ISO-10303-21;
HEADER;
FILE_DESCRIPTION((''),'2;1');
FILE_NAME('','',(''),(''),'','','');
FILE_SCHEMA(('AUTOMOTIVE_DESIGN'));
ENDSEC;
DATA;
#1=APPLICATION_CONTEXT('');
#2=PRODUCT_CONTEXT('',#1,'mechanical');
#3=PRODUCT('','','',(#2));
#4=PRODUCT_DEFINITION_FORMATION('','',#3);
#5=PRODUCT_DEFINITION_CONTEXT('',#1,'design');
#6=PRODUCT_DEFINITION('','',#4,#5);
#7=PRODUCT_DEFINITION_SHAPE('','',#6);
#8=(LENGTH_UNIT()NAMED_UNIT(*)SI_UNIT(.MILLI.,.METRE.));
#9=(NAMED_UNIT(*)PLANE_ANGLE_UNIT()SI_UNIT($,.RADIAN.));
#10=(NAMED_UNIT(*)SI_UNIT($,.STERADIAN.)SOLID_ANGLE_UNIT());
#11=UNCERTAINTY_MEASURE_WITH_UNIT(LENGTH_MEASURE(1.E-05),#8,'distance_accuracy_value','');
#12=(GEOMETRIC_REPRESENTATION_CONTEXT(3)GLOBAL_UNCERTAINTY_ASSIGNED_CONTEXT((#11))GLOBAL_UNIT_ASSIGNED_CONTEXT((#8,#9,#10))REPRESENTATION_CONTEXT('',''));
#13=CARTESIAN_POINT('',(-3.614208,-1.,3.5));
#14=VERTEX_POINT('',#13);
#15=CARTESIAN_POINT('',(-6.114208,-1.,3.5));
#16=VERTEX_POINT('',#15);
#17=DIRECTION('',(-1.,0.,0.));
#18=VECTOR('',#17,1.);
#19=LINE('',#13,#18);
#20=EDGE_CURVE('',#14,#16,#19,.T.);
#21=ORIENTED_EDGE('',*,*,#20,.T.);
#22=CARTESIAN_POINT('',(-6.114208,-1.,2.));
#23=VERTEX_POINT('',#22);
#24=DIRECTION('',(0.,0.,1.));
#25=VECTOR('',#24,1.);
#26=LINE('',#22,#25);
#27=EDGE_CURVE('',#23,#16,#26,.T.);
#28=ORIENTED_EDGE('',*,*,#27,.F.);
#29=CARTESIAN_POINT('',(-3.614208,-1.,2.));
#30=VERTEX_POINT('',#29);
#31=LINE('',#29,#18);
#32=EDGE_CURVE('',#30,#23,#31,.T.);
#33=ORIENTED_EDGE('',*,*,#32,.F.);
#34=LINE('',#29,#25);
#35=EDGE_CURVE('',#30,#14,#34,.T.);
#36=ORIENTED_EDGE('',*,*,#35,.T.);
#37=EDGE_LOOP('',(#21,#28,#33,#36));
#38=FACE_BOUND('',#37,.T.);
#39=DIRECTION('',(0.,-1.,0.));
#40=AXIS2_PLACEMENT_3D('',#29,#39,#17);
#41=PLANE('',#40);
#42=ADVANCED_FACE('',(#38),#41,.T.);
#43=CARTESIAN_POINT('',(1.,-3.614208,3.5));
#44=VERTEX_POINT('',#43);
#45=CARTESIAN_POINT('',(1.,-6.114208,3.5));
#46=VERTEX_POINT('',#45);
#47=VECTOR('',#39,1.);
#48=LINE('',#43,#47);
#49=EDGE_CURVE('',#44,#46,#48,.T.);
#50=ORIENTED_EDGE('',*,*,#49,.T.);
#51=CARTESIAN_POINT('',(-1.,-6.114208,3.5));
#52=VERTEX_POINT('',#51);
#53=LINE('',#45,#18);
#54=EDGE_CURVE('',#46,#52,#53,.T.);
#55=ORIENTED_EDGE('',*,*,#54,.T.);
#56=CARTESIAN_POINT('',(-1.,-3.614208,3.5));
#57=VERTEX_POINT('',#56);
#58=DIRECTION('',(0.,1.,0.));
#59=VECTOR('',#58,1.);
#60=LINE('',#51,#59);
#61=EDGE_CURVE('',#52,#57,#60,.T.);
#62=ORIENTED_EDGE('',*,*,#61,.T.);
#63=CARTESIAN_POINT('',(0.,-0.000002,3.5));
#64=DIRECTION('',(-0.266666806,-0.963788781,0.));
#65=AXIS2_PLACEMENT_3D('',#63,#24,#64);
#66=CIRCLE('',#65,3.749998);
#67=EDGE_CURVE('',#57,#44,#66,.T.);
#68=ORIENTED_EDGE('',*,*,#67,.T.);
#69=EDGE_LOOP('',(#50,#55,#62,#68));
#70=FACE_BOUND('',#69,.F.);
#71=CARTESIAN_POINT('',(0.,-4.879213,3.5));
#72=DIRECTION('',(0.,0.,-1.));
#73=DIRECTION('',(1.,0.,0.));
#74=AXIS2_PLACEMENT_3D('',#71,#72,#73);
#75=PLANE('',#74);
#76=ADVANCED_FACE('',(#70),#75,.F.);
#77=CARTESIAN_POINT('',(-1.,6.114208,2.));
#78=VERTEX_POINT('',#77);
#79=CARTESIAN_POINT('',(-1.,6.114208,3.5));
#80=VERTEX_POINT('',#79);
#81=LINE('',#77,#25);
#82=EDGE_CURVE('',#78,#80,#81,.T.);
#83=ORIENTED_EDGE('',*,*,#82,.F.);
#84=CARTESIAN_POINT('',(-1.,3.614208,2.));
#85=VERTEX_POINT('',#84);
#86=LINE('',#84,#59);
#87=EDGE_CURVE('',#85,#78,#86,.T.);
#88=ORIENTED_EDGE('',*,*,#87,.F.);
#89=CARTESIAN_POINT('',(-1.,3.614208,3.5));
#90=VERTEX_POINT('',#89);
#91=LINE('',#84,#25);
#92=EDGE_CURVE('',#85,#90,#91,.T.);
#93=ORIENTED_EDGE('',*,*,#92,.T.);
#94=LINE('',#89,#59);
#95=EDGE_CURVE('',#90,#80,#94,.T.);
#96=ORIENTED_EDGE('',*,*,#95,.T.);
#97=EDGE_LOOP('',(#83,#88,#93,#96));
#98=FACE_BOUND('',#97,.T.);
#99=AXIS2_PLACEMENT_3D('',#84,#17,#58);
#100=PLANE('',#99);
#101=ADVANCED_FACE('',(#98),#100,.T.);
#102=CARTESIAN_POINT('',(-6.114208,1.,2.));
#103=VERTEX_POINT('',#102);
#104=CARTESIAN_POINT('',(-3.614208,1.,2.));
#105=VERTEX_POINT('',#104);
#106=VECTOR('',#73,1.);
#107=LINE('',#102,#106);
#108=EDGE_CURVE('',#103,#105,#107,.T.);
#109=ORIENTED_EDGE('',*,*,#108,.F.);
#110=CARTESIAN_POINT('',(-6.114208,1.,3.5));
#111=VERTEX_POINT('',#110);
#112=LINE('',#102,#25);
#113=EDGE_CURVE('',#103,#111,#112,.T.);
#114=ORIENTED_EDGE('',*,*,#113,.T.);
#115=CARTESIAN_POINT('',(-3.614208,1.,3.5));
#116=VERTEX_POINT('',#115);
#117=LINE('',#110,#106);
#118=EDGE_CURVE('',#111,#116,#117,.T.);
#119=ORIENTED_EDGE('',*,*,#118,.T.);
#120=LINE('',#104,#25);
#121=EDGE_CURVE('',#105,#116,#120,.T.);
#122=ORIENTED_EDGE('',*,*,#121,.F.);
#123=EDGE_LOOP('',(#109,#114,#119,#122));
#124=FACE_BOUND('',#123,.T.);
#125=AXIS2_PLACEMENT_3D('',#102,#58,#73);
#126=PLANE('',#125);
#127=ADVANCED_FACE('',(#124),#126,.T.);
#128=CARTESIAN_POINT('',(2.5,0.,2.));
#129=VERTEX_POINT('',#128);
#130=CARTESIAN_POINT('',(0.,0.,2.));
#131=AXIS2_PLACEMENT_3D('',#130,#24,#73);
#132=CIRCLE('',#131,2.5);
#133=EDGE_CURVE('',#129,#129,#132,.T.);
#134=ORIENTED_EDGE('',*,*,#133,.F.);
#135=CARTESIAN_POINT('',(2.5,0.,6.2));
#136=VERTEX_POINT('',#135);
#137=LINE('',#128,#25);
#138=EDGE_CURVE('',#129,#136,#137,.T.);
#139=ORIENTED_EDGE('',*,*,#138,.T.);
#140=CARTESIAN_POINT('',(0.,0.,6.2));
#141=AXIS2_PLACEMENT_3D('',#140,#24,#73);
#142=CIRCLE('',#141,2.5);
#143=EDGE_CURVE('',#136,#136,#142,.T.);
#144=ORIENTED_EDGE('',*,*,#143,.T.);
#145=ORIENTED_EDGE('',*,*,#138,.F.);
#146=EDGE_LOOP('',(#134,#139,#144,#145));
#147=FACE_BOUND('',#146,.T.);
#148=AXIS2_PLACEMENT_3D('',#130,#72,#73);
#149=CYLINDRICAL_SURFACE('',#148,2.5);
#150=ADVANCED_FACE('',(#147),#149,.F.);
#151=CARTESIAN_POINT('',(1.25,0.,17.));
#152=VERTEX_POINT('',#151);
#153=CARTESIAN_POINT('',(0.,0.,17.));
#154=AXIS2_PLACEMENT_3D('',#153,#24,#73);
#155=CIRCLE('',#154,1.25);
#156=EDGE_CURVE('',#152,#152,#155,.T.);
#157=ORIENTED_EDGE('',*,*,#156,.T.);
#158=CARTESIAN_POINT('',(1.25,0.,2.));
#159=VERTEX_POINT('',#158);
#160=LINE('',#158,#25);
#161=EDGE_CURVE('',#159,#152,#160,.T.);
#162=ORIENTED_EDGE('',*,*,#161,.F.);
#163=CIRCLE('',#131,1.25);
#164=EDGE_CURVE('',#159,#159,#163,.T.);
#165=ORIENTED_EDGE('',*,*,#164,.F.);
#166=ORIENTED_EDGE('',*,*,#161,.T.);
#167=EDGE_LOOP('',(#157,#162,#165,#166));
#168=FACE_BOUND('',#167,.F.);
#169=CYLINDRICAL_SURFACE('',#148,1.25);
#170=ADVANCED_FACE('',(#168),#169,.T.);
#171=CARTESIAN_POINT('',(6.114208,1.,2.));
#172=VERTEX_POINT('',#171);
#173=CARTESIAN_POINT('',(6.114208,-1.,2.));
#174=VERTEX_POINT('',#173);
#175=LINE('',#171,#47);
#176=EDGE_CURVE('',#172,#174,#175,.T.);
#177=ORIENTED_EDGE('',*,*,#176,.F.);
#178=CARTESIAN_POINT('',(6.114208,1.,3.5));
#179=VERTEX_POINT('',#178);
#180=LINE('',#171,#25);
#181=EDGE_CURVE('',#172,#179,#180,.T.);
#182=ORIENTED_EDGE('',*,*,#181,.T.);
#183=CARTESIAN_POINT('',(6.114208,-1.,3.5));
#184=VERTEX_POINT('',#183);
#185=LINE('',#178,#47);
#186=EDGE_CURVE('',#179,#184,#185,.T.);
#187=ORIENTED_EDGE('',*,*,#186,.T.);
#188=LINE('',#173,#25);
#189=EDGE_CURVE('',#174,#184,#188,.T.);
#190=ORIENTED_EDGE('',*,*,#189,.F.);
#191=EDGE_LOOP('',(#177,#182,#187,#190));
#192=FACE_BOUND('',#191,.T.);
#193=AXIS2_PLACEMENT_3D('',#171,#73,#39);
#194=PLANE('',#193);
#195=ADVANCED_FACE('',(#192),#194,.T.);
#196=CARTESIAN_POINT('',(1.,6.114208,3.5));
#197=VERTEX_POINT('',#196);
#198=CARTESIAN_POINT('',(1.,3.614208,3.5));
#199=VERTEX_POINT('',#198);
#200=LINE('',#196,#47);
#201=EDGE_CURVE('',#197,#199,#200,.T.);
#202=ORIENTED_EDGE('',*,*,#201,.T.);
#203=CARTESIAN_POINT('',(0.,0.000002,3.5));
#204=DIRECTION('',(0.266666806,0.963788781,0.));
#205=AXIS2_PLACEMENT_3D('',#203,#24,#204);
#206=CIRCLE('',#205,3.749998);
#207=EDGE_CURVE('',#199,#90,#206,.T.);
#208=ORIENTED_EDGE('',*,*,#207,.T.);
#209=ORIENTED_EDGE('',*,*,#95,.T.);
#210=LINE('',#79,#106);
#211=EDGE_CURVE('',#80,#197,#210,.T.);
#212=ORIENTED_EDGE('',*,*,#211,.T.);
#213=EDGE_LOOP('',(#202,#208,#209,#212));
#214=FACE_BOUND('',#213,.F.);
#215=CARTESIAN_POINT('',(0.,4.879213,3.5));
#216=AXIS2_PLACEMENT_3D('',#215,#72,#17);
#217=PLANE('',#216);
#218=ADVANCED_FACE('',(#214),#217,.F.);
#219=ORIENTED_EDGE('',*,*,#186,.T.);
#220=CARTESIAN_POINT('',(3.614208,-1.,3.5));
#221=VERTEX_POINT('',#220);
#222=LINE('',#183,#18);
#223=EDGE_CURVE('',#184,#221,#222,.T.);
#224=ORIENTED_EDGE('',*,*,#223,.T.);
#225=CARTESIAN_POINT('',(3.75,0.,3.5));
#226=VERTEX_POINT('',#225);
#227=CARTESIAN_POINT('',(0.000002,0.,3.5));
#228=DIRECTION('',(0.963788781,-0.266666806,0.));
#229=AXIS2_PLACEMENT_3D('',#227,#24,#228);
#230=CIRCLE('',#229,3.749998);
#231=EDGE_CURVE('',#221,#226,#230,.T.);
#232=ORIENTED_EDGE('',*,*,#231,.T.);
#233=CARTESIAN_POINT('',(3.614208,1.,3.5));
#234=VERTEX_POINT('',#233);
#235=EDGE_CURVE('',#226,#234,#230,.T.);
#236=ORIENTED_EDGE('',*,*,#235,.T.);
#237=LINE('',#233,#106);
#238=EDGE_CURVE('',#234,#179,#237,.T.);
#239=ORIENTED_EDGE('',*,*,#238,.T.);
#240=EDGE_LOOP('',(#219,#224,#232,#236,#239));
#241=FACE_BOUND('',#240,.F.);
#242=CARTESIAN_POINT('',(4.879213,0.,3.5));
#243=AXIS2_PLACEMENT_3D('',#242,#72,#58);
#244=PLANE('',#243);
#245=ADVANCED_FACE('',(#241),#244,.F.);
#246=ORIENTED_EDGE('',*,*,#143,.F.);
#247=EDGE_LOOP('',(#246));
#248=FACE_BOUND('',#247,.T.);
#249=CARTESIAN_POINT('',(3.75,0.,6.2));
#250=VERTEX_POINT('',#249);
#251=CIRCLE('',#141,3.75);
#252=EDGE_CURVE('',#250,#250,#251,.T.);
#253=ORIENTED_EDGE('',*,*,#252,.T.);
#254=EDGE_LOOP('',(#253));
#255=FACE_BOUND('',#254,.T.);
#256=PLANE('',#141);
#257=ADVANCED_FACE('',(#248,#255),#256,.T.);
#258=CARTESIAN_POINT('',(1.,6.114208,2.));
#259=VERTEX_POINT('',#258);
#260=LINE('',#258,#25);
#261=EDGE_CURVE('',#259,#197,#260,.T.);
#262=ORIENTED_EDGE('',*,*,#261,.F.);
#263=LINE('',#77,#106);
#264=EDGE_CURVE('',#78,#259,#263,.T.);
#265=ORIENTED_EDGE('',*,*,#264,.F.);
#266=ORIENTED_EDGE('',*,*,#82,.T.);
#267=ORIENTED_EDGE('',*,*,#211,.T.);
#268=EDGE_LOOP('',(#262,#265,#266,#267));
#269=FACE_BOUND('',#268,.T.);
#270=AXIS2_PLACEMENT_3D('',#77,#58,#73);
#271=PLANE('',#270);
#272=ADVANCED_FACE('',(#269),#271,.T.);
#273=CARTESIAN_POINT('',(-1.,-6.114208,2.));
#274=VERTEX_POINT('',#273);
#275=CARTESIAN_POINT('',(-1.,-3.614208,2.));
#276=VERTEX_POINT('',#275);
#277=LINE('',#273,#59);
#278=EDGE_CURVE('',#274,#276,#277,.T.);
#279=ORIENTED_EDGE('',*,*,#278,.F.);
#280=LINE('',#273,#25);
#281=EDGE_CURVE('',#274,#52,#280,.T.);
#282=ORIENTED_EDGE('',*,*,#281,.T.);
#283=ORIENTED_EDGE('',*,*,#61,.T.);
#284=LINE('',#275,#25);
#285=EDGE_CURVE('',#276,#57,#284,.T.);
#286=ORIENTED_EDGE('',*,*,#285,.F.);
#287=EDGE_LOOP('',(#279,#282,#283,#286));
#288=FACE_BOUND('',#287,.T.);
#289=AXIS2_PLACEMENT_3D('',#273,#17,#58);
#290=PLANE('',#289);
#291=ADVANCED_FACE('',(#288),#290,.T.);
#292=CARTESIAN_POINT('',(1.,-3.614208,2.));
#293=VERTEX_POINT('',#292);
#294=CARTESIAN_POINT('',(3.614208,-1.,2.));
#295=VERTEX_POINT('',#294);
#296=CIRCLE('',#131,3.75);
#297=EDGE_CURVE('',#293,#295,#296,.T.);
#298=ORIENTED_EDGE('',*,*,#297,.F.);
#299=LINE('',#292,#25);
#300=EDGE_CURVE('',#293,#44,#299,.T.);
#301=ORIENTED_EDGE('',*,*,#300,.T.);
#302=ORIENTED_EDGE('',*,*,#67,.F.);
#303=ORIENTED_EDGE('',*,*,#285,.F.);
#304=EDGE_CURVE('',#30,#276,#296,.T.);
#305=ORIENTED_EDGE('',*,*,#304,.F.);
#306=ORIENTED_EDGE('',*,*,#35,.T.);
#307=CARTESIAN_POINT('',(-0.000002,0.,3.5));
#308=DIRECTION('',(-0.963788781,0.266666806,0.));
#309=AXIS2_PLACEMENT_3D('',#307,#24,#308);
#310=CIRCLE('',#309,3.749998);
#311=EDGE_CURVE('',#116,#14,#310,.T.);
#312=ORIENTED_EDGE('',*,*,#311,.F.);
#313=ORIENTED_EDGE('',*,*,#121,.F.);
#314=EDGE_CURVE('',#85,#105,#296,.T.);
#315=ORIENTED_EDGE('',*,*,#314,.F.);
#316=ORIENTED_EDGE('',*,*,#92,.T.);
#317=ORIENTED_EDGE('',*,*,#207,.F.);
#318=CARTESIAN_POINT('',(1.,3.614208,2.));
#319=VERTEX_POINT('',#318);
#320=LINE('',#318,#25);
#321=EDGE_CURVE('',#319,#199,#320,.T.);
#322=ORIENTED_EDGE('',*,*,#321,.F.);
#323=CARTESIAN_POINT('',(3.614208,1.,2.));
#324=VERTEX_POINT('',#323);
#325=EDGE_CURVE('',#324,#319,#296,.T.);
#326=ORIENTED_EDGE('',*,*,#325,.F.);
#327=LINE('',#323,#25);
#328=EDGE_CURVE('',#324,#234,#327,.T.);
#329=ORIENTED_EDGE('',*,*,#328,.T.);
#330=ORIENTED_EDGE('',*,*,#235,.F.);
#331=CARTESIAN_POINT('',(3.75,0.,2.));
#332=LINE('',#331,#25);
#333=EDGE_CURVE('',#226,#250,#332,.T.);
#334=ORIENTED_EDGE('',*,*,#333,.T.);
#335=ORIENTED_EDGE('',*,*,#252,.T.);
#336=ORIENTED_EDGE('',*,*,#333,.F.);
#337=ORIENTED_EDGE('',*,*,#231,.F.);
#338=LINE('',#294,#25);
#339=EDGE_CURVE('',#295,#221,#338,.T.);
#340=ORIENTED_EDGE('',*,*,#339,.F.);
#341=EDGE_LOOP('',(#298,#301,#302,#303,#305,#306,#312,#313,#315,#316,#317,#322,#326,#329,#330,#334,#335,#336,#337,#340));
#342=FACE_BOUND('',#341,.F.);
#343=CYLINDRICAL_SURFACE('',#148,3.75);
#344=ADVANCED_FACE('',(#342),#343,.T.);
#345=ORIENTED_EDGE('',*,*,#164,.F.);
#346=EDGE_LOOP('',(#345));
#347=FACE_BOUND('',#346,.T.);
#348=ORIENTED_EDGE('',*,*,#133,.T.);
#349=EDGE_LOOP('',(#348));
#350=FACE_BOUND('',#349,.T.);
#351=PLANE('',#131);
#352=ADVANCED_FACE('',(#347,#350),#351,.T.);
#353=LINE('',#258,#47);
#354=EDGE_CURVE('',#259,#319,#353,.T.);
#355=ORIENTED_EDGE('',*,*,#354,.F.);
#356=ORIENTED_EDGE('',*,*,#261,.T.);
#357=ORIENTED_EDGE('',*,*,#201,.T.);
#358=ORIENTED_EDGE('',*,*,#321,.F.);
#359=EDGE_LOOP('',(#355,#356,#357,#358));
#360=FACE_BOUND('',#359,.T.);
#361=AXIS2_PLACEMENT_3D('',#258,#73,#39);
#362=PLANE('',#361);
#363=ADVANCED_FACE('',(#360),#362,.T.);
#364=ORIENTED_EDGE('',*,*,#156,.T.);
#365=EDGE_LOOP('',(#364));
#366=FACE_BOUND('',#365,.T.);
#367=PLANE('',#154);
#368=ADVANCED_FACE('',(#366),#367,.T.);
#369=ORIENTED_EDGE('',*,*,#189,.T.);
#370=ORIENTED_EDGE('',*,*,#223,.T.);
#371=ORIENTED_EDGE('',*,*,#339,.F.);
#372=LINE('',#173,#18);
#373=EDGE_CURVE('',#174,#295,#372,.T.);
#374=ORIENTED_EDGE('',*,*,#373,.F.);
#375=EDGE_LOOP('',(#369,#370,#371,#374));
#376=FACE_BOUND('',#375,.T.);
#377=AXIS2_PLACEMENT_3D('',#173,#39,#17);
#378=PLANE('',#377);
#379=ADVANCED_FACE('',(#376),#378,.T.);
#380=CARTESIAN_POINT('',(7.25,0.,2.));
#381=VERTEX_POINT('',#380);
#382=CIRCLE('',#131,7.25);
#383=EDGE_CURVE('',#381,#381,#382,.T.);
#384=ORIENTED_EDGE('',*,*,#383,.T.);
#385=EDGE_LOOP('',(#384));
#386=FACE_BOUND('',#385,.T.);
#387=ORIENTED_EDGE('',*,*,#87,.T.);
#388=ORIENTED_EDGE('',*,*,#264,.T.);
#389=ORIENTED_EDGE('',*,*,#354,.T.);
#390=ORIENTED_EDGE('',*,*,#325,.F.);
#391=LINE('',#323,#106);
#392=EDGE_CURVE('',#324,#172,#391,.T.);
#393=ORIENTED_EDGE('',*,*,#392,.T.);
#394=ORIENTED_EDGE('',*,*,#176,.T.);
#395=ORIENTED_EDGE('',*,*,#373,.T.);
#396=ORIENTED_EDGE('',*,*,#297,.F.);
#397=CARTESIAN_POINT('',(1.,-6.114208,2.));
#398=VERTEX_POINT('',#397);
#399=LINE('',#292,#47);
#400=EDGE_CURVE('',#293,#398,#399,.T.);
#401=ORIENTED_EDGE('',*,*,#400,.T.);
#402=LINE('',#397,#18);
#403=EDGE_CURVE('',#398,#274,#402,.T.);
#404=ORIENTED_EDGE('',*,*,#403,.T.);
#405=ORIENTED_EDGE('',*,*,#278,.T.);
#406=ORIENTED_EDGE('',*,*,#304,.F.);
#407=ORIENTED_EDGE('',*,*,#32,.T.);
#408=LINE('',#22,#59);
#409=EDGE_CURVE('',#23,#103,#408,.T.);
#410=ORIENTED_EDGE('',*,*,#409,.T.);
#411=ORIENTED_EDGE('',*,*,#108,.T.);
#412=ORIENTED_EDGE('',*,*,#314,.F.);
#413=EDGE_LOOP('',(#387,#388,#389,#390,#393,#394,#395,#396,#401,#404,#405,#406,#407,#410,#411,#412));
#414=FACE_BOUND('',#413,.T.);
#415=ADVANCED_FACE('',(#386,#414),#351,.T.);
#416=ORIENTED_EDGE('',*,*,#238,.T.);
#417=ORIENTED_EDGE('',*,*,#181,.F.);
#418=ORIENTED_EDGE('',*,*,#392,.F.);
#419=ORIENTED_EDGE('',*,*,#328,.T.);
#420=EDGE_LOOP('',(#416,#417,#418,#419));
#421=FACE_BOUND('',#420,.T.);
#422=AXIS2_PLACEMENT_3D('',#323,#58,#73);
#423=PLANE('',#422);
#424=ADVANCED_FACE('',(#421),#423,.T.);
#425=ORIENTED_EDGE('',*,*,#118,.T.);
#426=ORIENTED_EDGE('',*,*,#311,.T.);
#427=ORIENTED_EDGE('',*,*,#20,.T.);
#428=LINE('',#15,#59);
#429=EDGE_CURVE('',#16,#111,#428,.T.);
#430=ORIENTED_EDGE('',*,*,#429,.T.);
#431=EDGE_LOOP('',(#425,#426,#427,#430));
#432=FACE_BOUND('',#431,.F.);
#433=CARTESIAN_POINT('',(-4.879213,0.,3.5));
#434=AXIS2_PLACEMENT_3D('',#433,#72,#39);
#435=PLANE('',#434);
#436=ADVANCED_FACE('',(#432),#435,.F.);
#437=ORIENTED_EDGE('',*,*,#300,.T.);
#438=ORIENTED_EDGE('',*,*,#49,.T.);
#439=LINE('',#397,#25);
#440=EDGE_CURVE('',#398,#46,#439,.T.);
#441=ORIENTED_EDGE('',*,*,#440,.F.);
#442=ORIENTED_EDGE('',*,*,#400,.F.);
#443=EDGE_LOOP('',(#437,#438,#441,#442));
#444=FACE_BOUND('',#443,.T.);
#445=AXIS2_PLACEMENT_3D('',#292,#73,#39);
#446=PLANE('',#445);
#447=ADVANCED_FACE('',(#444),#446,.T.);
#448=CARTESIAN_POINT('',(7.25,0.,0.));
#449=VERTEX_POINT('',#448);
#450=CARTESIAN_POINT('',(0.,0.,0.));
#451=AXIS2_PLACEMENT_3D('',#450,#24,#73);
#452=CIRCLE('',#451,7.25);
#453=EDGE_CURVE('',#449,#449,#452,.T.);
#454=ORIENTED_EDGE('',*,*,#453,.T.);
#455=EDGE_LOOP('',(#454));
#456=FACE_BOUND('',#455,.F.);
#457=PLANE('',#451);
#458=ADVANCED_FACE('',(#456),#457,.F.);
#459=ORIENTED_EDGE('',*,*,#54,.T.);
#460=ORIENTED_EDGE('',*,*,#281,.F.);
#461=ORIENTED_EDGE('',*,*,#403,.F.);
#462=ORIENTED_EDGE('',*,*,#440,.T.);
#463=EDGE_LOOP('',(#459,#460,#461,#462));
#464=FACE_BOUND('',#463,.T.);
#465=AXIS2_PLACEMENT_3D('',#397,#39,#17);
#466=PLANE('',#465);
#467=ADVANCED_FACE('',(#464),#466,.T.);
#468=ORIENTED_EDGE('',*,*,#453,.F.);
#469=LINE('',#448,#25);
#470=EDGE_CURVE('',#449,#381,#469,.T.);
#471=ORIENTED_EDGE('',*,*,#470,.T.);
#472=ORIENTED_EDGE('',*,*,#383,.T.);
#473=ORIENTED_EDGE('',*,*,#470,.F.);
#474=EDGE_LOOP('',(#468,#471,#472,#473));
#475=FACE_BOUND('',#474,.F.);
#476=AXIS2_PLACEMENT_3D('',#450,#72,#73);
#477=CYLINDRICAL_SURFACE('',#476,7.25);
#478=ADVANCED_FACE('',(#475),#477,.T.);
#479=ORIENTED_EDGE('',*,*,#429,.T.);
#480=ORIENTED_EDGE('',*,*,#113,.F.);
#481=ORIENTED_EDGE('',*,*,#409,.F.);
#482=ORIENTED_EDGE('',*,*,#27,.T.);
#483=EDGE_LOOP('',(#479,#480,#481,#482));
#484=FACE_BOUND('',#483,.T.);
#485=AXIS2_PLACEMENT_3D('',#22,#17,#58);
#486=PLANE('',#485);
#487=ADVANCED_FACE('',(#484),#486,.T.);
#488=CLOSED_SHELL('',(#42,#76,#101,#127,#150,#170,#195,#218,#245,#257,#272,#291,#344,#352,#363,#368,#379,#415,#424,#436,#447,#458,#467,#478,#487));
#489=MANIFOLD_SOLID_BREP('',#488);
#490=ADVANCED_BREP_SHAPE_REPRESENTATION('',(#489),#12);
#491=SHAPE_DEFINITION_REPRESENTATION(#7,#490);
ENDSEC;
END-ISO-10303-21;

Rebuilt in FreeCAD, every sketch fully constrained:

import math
import FreeCAD as App
import Part
import Sketcher

V = App.Vector
Q = App.Units.Quantity

doc = App.newDocument("Part")
body = doc.addObject("PartDesign::Body", "Body")

sketch1 = body.newObject("Sketcher::SketchObject", "Sketch")
sketch1.AttachmentSupport = (doc.getObject("XY_Plane"), [""])
sketch1.MapMode = "FlatFace"
sketch1.addGeometry(Part.Circle(V(0, 0, 0), V(0, 0, 1), 7.25), False)
sketch1.addConstraint([
    Sketcher.Constraint("Coincident", 0, 3, -1, 1),
    Sketcher.Constraint("Diameter", 0, Q("14.5 mm")),
])
pad1 = body.newObject("PartDesign::Pad", "Pad")
pad1.Profile = sketch1
pad1.Length = 2

sketch2 = body.newObject("Sketcher::SketchObject", "Sketch001")
sketch2.AttachmentSupport = (doc.getObject("XY_Plane"), [""])
sketch2.MapMode = "FlatFace"
sketch2.AttachmentOffset = App.Placement(V(0, 0, 2), App.Rotation())
sketch2.addGeometry([
    Part.Circle(V(0, 0, 0), V(0, 0, 1), 3.75),
    Part.Circle(V(0, 0, 0), V(0, 0, 1), 2.5),
], False)
sketch2.addConstraint([
    Sketcher.Constraint("Coincident", 0, 3, -1, 1),
    Sketcher.Constraint("Coincident", 1, 3, -1, 1),
    Sketcher.Constraint("Diameter", 1, Q("5 mm")),
    Sketcher.Constraint("Diameter", 0, Q("7.5 mm")),
])
pad2 = body.newObject("PartDesign::Pad", "Pad001")
pad2.Profile = sketch2
pad2.Length = 4.2

sketch3 = body.newObject("Sketcher::SketchObject", "Sketch002")
sketch3.AttachmentSupport = (doc.getObject("XY_Plane"), [""])
sketch3.MapMode = "FlatFace"
sketch3.AttachmentOffset = App.Placement(V(0, 0, 2), App.Rotation())
sketch3.addGeometry(Part.Circle(V(0, 0, 0), V(0, 0, 1), 1.25), False)
sketch3.addConstraint([
    Sketcher.Constraint("Coincident", 0, 3, -1, 1),
    Sketcher.Constraint("Diameter", 0, Q("2.5 mm")),
])
pad3 = body.newObject("PartDesign::Pad", "Pad002")
pad3.Profile = sketch3
pad3.Length = 15

sketch4 = body.newObject("Sketcher::SketchObject", "Sketch003")
sketch4.AttachmentSupport = (doc.getObject("XY_Plane"), [""])
sketch4.MapMode = "FlatFace"
sketch4.AttachmentOffset = App.Placement(V(0, 0, 2), App.Rotation())
sketch4.addGeometry([
    Part.LineSegment(V(-1, 6.114208, 0), V(-1, 3.614208, 0)),
    Part.ArcOfCircle(Part.Circle(V(0, 0.000002, 0), V(0, 0, 1), 3.749998), math.radians(74.533982), math.radians(105.466018)),
    Part.LineSegment(V(1, 3.614208, 0), V(1, 6.114208, 0)),
    Part.LineSegment(V(1, 6.114208, 0), V(-1, 6.114208, 0)),
], False)
sketch4.addConstraint([
    Sketcher.Constraint("Coincident", 0, 2, 1, 2),
    Sketcher.Constraint("Coincident", 1, 1, 2, 1),
    Sketcher.Constraint("Coincident", 2, 2, 3, 1),
    Sketcher.Constraint("Coincident", 3, 2, 0, 1),
    Sketcher.Constraint("Vertical", 0),
    Sketcher.Constraint("Vertical", 2),
    Sketcher.Constraint("Horizontal", 3),
    Sketcher.Constraint("Coincident", 1, 3, -1, 1),
    Sketcher.Constraint("Horizontal", 0, 2, 1, 1),
    Sketcher.Constraint("DistanceX", 3, 2, 3, 1, Q("2 mm")),
    Sketcher.Constraint("Radius", 1, Q("3.749998 mm")),
    Sketcher.Constraint("DistanceY", 0, 2, 0, 1, Q("2.5 mm")),
])
pad4 = body.newObject("PartDesign::Pad", "Pad003")
pad4.Profile = sketch4
pad4.Length = 1.5
doc.recompute()

polarpattern = body.newObject("PartDesign::PolarPattern", "PolarPattern")
polarpattern.Originals = [pad4]
polarpattern.Axis = (doc.getObject("Z_Axis"), [""])
polarpattern.Angle = 360
polarpattern.Occurrences = 4
body.Tip = polarpattern

doc.recompute()
